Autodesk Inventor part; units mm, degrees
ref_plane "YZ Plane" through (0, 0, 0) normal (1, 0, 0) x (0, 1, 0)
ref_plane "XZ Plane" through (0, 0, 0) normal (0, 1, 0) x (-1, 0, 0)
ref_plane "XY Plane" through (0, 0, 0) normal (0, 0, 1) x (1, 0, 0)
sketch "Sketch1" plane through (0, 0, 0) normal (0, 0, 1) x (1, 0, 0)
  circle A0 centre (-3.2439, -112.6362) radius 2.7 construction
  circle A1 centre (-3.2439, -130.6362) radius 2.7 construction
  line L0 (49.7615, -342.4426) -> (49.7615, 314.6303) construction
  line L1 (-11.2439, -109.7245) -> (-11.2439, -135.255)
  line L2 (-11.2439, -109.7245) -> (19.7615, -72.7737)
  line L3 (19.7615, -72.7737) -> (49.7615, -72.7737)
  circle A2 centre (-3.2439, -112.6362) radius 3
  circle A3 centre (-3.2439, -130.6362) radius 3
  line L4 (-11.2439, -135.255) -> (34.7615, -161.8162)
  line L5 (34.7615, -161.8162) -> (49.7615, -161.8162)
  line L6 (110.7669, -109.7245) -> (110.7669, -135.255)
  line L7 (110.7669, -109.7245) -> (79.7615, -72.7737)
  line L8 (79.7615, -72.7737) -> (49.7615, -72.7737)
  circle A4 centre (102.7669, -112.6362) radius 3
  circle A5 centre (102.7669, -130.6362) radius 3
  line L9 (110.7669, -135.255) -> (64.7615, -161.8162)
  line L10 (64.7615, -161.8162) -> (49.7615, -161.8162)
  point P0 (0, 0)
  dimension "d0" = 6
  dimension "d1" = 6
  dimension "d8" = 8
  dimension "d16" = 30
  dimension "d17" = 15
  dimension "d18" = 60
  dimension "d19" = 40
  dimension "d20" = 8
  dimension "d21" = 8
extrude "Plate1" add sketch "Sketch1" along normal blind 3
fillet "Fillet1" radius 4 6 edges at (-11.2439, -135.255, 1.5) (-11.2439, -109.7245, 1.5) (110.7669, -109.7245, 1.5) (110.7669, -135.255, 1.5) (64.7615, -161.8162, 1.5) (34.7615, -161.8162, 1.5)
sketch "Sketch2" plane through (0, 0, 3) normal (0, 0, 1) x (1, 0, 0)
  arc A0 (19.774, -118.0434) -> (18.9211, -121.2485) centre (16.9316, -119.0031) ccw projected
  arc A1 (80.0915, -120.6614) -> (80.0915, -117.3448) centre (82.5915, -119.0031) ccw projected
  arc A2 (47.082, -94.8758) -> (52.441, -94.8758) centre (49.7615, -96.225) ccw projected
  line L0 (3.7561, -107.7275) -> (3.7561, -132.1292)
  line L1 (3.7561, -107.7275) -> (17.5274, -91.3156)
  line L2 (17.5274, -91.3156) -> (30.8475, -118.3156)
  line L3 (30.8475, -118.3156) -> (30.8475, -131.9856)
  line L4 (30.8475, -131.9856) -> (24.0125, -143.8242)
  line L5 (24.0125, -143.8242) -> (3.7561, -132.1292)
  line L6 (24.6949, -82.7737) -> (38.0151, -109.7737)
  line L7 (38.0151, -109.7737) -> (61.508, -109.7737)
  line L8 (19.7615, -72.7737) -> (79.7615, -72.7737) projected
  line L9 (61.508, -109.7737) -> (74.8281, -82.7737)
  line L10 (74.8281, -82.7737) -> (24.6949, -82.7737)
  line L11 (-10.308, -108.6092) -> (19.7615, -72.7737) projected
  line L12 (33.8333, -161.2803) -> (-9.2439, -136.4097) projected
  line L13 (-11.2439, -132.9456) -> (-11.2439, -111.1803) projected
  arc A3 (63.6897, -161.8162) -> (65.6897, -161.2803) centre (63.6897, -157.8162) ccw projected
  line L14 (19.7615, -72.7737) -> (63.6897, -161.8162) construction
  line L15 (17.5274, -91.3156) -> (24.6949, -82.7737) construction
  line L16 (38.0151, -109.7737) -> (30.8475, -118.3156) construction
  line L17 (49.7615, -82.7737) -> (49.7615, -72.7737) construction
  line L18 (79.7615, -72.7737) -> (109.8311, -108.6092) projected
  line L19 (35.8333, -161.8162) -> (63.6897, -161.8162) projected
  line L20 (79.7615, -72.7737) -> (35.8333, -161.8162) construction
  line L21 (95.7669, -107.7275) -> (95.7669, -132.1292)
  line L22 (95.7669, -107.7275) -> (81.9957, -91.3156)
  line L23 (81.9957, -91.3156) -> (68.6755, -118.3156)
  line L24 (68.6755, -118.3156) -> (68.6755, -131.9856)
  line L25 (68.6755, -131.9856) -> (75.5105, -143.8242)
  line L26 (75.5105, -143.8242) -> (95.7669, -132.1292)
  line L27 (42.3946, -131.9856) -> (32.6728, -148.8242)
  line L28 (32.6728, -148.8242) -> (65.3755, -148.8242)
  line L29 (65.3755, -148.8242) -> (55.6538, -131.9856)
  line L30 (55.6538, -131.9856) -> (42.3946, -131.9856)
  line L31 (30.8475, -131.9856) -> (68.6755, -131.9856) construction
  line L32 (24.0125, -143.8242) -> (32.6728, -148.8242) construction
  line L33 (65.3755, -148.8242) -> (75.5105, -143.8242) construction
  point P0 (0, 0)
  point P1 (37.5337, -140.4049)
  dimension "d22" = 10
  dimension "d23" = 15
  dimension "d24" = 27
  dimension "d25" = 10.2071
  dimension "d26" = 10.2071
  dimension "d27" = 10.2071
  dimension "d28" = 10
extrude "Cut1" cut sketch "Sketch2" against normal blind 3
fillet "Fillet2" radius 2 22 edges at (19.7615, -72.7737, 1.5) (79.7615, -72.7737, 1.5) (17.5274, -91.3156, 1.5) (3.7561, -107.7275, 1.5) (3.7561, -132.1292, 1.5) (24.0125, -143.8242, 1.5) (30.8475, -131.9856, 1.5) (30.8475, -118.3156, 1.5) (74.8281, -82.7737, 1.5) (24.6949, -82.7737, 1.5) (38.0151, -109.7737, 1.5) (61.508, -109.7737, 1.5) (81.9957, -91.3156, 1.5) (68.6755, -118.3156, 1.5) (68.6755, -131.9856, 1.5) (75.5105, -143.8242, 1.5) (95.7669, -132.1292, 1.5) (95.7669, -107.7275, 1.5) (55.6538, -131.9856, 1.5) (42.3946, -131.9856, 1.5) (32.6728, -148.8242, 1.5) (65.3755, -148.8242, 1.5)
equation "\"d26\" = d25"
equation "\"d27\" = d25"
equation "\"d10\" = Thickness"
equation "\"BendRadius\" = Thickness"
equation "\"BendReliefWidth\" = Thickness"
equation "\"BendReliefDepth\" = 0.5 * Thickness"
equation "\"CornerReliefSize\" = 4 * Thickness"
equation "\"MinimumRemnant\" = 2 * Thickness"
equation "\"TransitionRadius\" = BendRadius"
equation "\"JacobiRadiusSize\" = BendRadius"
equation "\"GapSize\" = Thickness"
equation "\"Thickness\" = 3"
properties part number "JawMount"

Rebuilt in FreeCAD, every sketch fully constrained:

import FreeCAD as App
import Part
import Sketcher
from FreeCAD import Vector
Q = App.Units.Quantity


def edges_at(feature, points):
    """Names of the edges that pass closest to the given points."""
    edges = feature.Shape.Edges
    near = lambda p: min(range(len(edges)), key=lambda i: edges[i].distToShape(Part.Vertex(*p))[0])
    return sorted({f"Edge{near(p) + 1}" for p in points})


def add_polygon(sketch, points):
    """Adds a closed chain of lines whose ends are joined by coincident constraints."""
    first, n = sketch.GeometryCount, len(points)
    for a, b in zip(points, points[1:] + points[:1]):
        sketch.addGeometry(Part.LineSegment(App.Vector(*a, 0), App.Vector(*b, 0)), False)
    for i in range(n):
        sketch.addConstraint(Sketcher.Constraint("Coincident", first + i, 2, first + (i + 1) % n, 1))

doc = App.newDocument("Part")
body = doc.addObject("PartDesign::Body", "Body")

sketch1 = body.newObject("Sketcher::SketchObject", "Sketch")
sketch1.AttachmentSupport = (doc.getObject("XY_Plane"), [""])
sketch1.MapMode = "FlatFace"
add_polygon(sketch1, [(19.8, -72.8), (-11.2, -109.7), (-11.2, -135.3), (34.8, -161.8), (64.8, -161.8), (110.8, -135.3), (110.8, -109.7), (79.8, -72.8)])
sketch1.addGeometry(Part.Circle(Vector(-3.2, -130.6, 0), Vector(0, 0, 1), 3), False)
sketch1.addGeometry(Part.Circle(Vector(102.8, -130.6, 0), Vector(0, 0, 1), 3), False)
sketch1.addGeometry(Part.Circle(Vector(-3.2, -112.6, 0), Vector(0, 0, 1), 3), False)
sketch1.addGeometry(Part.Circle(Vector(102.8, -112.6, 0), Vector(0, 0, 1), 3), False)
sketch1.addConstraint([
    Sketcher.Constraint("Vertical", 1),
    Sketcher.Constraint("Horizontal", 3),
    Sketcher.Constraint("Vertical", 5),
    Sketcher.Constraint("Horizontal", 7),
    Sketcher.Constraint("Equal", 8, 9),
    Sketcher.Constraint("Equal", 9, 10),
    Sketcher.Constraint("Equal", 10, 11),
    Sketcher.Constraint("Horizontal", 8, 3, 9, 3),
    Sketcher.Constraint("Horizontal", 10, 3, 11, 3),
    Sketcher.Constraint("Horizontal", 1, 2, 4, 2),
    Sketcher.Constraint("Horizontal", 0, 2, 5, 2),
    Sketcher.Constraint("Vertical", 8, 3, 10, 3),
    Sketcher.Constraint("Vertical", 9, 3, 11, 3),
    Sketcher.Constraint("Equal", 2, 4),
    Sketcher.Constraint("Equal", 0, 6),
    Sketcher.Constraint("Diameter", 8, 6.0),
    Sketcher.Constraint("DistanceX", 3, 1, 3, 2, 30.0),
    Sketcher.Constraint("DistanceX", 7, 2, 7, 1, 60.0),
    Sketcher.Constraint("Angle", 2, Q("-30 deg")),
    Sketcher.Constraint("DistanceX", 0, 2, 10, 3, 8.0),
    Sketcher.Constraint("DistanceX", 9, 3, 4, 2, 8.0),
    Sketcher.Constraint("Angle", 0, Q("-130 deg")),
    Sketcher.Constraint("DistanceY", 8, 3, 10, 3, 18.0),
    Sketcher.Constraint("DistanceY", 2, 2, 8, 3, 31.18),
    Sketcher.Constraint("DistanceY", 1, 2, 1, 1, 25.5305),
    Sketcher.Constraint("DistanceX", 8, 3, -1, 1, 3.244),
    Sketcher.Constraint("DistanceX", -1, 1, 9, 3, 102.767),
    Sketcher.Constraint("DistanceY", 1, 2, -1, 1, 135.255),
])
pad1 = body.newObject("PartDesign::Pad", "Pad")
pad1.Profile = sketch1
pad1.Length = 3
doc.recompute()

fillet = body.newObject("PartDesign::Fillet", "Fillet")
fillet.Base = (pad1, edges_at(pad1, [
    (-11.244, -135.255, 1.5),
    (-11.244, -109.725, 1.5),
    (110.767, -109.725, 1.5),
    (110.767, -135.255, 1.5),
    (64.761, -161.816, 1.5),
    (34.761, -161.816, 1.5),
]))
fillet.Radius = 4

sketch2 = body.newObject("Sketcher::SketchObject", "Sketch001")
sketch2.AttachmentSupport = (doc.getObject("XY_Plane"), [""])
sketch2.MapMode = "FlatFace"
sketch2.AttachmentOffset = App.Placement(Vector(0, 0, 3), App.Rotation())
add_polygon(sketch2, [(18, -91), (4, -108), (4, -132), (24, -144), (31, -132), (31, -118)])
add_polygon(sketch2, [(75, -83), (25, -83), (38, -110), (62, -110)])
add_polygon(sketch2, [(96, -132), (96, -108), (82, -91), (69, -118), (69, -132), (76, -144)])
add_polygon(sketch2, [(56, -132), (42, -132), (33, -149), (65, -149)])
sketch2.addConstraint([
    Sketcher.Constraint("Vertical", 1),
    Sketcher.Constraint("Vertical", 4),
    Sketcher.Constraint("Horizontal", 6),
    Sketcher.Constraint("Horizontal", 8),
    Sketcher.Constraint("Vertical", 10),
    Sketcher.Constraint("Vertical", 13),
    Sketcher.Constraint("Horizontal", 16),
    Sketcher.Constraint("Horizontal", 18),
    Sketcher.Constraint("Perpendicular", 2, 3),
    Sketcher.Constraint("Parallel", 5, 7),
    Sketcher.Constraint("Parallel", 9, 12),
    Sketcher.Constraint("Perpendicular", 14, 15),
    Sketcher.Constraint("Parallel", 3, 17),
    Sketcher.Constraint("Perpendicular", 15, 19),
    Sketcher.Constraint("Horizontal", 0, 2, 10, 2),
    Sketcher.Constraint("Horizontal", 5, 2, 11, 2),
    Sketcher.Constraint("Horizontal", 4, 2, 12, 2),
    Sketcher.Constraint("Horizontal", 3, 2, 13, 2),
    Sketcher.Constraint("Horizontal", 2, 2, 14, 2),
    Sketcher.Constraint("Horizontal", 1, 2, 15, 2),
    Sketcher.Constraint("Horizontal", 13, 2, 16, 2),
    Sketcher.Constraint("Equal", 5, 7),
    Sketcher.Constraint("Equal", 7, 9),
    Sketcher.Constraint("Equal", 0, 11),
    Sketcher.Constraint("DistanceY", 4, 2, 5, 2, 27.0),
    Sketcher.Constraint("Angle", 0, Q("-130.0002 deg")),
    Sketcher.Constraint("Angle", 2, Q("-30 deg")),
    Sketcher.Constraint("DistanceY", 17, 2, 2, 2, 5.0),
    Sketcher.Constraint("DistanceY", 4, 1, 4, 2, 13.67),
    Sketcher.Constraint("Angle", 5, Q("116.2588 deg")),
    Sketcher.Constraint("DistanceX", 18, 2, 13, 2, 3.3),
    Sketcher.Constraint("Distance", 2, 23.39),
    Sketcher.Constraint("Distance", 3, 13.67),
    Sketcher.Constraint("DistanceX", 8, 1, 8, 2, 23.493),
    Sketcher.Constraint("DistanceX", 16, 2, 16, 1, 13.2592),
    Sketcher.Constraint("DistanceX", -1, 1, 0, 2, 3.756),
    Sketcher.Constraint("DistanceX", -1, 1, 6, 2, 24.695),
    Sketcher.Constraint("DistanceX", -1, 1, 10, 2, 95.767),
    Sketcher.Constraint("DistanceY", 5, 2, 6, 2, 8.542),
    Sketcher.Constraint("DistanceY", 0, 2, -1, 1, 107.7275),
])
pocket1 = body.newObject("PartDesign::Pocket", "Pocket")
pocket1.Profile = sketch2
pocket1.Length = 3
doc.recompute()

fillet2 = body.newObject("PartDesign::Fillet", "Fillet001")
fillet2.Base = (pocket1, edges_at(pocket1, [
    (19.762, -72.774, 1.5),
    (79.761, -72.774, 1.5),
    (17.527, -91.316, 1.5),
    (3.756, -107.728, 1.5),
    (3.756, -132.129, 1.5),
    (24.012, -143.824, 1.5),
    (30.848, -131.986, 1.5),
    (30.848, -118.316, 1.5),
    (74.828, -82.774, 1.5),
    (24.695, -82.774, 1.5),
    (38.015, -109.774, 1.5),
    (61.508, -109.774, 1.5),
    (81.996, -91.316, 1.5),
    (68.675, -118.316, 1.5),
    (68.675, -131.986, 1.5),
    (75.51, -143.824, 1.5),
    (95.767, -132.129, 1.5),
    (95.767, -107.728, 1.5),
    (55.654, -131.986, 1.5),
    (42.395, -131.986, 1.5),
    (32.673, -148.824, 1.5),
    (65.376, -148.824, 1.5),
]))
fillet2.Radius = 2

doc.recompute()
